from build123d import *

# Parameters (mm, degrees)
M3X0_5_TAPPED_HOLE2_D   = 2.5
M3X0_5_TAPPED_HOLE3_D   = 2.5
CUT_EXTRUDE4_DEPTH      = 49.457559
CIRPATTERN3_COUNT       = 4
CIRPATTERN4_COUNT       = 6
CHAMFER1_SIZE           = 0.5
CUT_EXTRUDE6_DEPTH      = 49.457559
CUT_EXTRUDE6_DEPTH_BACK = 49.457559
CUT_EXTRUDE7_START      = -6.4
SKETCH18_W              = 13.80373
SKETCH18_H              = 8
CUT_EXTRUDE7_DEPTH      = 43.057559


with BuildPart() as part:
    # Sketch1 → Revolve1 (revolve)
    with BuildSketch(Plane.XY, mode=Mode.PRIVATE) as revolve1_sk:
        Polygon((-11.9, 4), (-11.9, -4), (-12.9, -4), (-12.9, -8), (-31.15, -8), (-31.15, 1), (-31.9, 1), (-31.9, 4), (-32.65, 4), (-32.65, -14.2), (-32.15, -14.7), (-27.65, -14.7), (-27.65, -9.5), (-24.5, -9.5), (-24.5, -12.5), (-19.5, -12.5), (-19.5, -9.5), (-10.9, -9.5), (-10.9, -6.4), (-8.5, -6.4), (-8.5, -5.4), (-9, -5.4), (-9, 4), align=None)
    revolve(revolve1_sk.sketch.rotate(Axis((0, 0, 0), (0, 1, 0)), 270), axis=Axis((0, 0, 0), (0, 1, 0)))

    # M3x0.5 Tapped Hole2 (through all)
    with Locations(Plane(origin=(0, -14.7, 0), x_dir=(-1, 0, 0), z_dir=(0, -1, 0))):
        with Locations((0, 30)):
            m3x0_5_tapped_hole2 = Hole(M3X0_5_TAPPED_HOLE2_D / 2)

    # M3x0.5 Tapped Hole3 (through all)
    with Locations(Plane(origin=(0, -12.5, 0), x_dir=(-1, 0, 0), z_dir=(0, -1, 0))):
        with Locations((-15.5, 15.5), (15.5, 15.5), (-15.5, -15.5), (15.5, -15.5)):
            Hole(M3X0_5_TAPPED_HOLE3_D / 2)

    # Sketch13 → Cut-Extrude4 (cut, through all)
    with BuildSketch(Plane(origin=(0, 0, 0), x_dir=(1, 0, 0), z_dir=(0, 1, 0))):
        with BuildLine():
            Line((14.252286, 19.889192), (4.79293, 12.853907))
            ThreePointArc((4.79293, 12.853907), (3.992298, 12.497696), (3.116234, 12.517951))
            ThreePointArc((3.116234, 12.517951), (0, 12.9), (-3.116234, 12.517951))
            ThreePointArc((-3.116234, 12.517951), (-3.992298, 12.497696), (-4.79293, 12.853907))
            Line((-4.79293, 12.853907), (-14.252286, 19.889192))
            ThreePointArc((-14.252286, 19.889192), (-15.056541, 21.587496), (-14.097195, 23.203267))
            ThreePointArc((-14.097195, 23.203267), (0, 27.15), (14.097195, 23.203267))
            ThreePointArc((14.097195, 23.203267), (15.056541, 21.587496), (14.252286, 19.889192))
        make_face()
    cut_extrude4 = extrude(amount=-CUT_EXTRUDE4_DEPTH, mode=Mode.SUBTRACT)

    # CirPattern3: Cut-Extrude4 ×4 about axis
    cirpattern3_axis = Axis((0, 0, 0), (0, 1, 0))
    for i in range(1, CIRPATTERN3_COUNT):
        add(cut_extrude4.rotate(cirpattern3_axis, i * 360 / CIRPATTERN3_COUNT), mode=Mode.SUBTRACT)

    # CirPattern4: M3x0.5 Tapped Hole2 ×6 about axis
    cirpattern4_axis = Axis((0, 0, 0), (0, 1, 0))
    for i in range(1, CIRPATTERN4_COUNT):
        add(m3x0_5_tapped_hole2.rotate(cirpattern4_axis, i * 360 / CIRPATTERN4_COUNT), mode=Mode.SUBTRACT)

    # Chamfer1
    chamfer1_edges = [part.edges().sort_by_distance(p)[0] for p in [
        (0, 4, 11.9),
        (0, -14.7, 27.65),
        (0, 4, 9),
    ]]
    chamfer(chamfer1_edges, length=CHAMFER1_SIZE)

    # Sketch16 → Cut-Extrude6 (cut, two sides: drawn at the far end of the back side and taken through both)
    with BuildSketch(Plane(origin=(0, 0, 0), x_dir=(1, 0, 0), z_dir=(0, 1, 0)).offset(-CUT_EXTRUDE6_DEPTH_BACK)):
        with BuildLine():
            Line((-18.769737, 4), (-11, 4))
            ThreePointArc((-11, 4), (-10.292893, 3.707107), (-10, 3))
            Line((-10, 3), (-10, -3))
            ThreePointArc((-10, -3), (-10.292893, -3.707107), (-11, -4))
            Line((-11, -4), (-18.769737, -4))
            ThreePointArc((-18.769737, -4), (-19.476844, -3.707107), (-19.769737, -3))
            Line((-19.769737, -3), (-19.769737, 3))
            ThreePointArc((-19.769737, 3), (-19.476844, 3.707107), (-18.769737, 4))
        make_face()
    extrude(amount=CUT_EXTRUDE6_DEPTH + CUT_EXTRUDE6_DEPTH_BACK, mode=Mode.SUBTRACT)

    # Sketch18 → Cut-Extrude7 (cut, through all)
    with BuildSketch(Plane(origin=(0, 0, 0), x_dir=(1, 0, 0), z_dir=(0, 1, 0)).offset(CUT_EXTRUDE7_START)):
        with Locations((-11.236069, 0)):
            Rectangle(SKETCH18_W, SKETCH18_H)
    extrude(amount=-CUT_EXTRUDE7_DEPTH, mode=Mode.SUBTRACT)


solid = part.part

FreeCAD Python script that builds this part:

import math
import FreeCAD as App
import Part
import Sketcher

V = App.Vector
Q = App.Units.Quantity


def edges_at(feature, points):
    """Names of the edges that pass closest to the given points."""
    edges = feature.Shape.Edges
    near = lambda p: min(range(len(edges)), key=lambda i: edges[i].distToShape(Part.Vertex(*p))[0])
    return sorted({f"Edge{near(p) + 1}" for p in points})


def add_polygon(sketch, points):
    """Adds a closed chain of lines whose ends are joined by coincident constraints."""
    first, n = sketch.GeometryCount, len(points)
    for a, b in zip(points, points[1:] + points[:1]):
        sketch.addGeometry(Part.LineSegment(App.Vector(*a, 0), App.Vector(*b, 0)), False)
    for i in range(n):
        sketch.addConstraint(Sketcher.Constraint("Coincident", first + i, 2, first + (i + 1) % n, 1))

doc = App.newDocument("Part")
body = doc.addObject("PartDesign::Body", "Body")

sketch1 = doc.addObject("Sketcher::SketchObject", "Sketch")
body.addObject(sketch1)
sketch1.AttachmentSupport = (doc.XY_Plane, [""])
sketch1.MapMode = "FlatFace"
add_polygon(sketch1, [(-11.9, 4), (-11.9, -4), (-12.9, -4), (-12.9, -8), (-31.15, -8), (-31.15, 1), (-31.9, 1), (-31.9, 4), (-32.65, 4), (-32.65, -14.2), (-32.15, -14.7), (-27.65, -14.7), (-27.65, -9.5), (-24.5, -9.5), (-24.5, -12.5), (-19.5, -12.5), (-19.5, -9.5), (-10.9, -9.5), (-10.9, -6.4), (-8.5, -6.4), (-8.5, -5.4), (-9, -5.4), (-9, 4)])
sketch1.addConstraint([
    Sketcher.Constraint("Vertical", 0),
    Sketcher.Constraint("Horizontal", 1),
    Sketcher.Constraint("Vertical", 2),
    Sketcher.Constraint("Horizontal", 3),
    Sketcher.Constraint("Vertical", 4),
    Sketcher.Constraint("Horizontal", 5),
    Sketcher.Constraint("Vertical", 6),
    Sketcher.Constraint("Horizontal", 7),
    Sketcher.Constraint("Vertical", 8),
    Sketcher.Constraint("Horizontal", 10),
    Sketcher.Constraint("Vertical", 11),
    Sketcher.Constraint("Horizontal", 12),
    Sketcher.Constraint("Vertical", 13),
    Sketcher.Constraint("Horizontal", 14),
    Sketcher.Constraint("Vertical", 15),
    Sketcher.Constraint("Horizontal", 16),
    Sketcher.Constraint("Vertical", 17),
    Sketcher.Constraint("Horizontal", 18),
    Sketcher.Constraint("Vertical", 19),
    Sketcher.Constraint("Horizontal", 20),
    Sketcher.Constraint("Vertical", 21),
    Sketcher.Constraint("Horizontal", 22),
    Sketcher.Constraint("Horizontal", 12, 2, 15, 2),
    Sketcher.Constraint("Horizontal", 7, 2, 21, 2),
    Sketcher.Constraint("Equal", 5, 7),
    Sketcher.Constraint("Equal", 6, 13),
    Sketcher.Constraint("Equal", 1, 19),
    Sketcher.Constraint("DistanceX", 1, 2, 1, 1, 1.0),
    Sketcher.Constraint("DistanceX", 14, 1, 14, 2, 5.0),
    Sketcher.Constraint("DistanceY", 0, 2, 0, 1, 8.0),
    Sketcher.Constraint("DistanceY", 2, 2, 2, 1, 4.0),
    Sketcher.Constraint("DistanceY", 4, 1, 4, 2, 9.0),
    Sketcher.Constraint("Angle", 9, Q("-45 deg")),
    Sketcher.Constraint("DistanceX", 10, 1, 10, 2, 4.5),
    Sketcher.Constraint("DistanceX", 16, 1, 16, 2, 8.6),
    Sketcher.Constraint("DistanceX", 18, 1, 18, 2, 2.4),
    Sketcher.Constraint("DistanceX", 20, 2, 20, 1, 0.5),
    Sketcher.Constraint("DistanceX", 22, 2, 22, 1, 2.9),
    Sketcher.Constraint("DistanceY", 8, 2, 8, 1, 18.2),
    Sketcher.Constraint("DistanceY", 11, 1, 11, 2, 5.2),
    Sketcher.Constraint("DistanceY", 17, 1, 17, 2, 3.1),
    Sketcher.Constraint("DistanceY", 21, 1, 21, 2, 9.4),
    Sketcher.Constraint("DistanceY", 0, 2, -1, 1, 4.0),
    Sketcher.Constraint("DistanceX", 20, 2, -1, 1, 9.0),
    Sketcher.Constraint("DistanceX", 5, 2, 1, 2, 19.0),
    Sketcher.Constraint("DistanceX", 9, 2, 3, 2, 1.0),
])
revolution = doc.addObject("PartDesign::Revolution", "Revolution")
body.addObject(revolution)
revolution.Profile = sketch1
revolution.ReferenceAxis = (sketch1, ["V_Axis"])
revolution.Angle = 360

sketch2 = doc.addObject("Sketcher::SketchObject", "Sketch001")
body.addObject(sketch2)
sketch2.AttachmentSupport = (doc.XZ_Plane, [""])
sketch2.MapMode = "FlatFace"
sketch2.AttachmentOffset = App.Placement(V(0, 0, 14.7), App.Rotation())
sketch2.addGeometry(Part.Circle(V(0, -30, 0), V(0, 0, 1), 1.25), False)
sketch2.addConstraint([
    Sketcher.Constraint("PointOnObject", 0, 3, -2),
    Sketcher.Constraint("Diameter", 0, 2.5),
    Sketcher.Constraint("DistanceY", 0, 3, -1, 1, 30.0),
])
doc.recompute()
hole = doc.addObject("PartDesign::Hole", "Hole")
body.addObject(hole)
hole.Profile = sketch2
hole.ThreadType = "None"
hole.Diameter = 2.5
hole.DepthType = "ThroughAll"

sketch3 = doc.addObject("Sketcher::SketchObject", "Sketch002")
body.addObject(sketch3)
sketch3.AttachmentSupport = (doc.XZ_Plane, [""])
sketch3.MapMode = "FlatFace"
sketch3.AttachmentOffset = App.Placement(V(0, 0, 12.5), App.Rotation())
sketch3.addGeometry([
    Part.Circle(V(15.5, -15.5, 0), V(0, 0, 1), 1.25),
    Part.Circle(V(-15.5, -15.5, 0), V(0, 0, 1), 1.25),
    Part.Circle(V(15.5, 15.5, 0), V(0, 0, 1), 1.25),
    Part.Circle(V(-15.5, 15.5, 0), V(0, 0, 1), 1.25),
], False)
sketch3.addConstraint([
    Sketcher.Constraint("Equal", 0, 1),
    Sketcher.Constraint("Equal", 1, 2),
    Sketcher.Constraint("Equal", 2, 3),
    Sketcher.Constraint("Symmetric", 1, 3, 2, 3, -1, 1),
    Sketcher.Constraint("Symmetric", 0, 3, 3, 3, -1, 1),
    Sketcher.Constraint("Symmetric", 0, 3, 1, 3, -2),
    Sketcher.Constraint("Diameter", 0, 2.5),
    Sketcher.Constraint("DistanceX", 1, 3, 0, 3, 31.0),
    Sketcher.Constraint("DistanceY", 0, 3, 2, 3, 31.0),
])
doc.recompute()
hole2 = doc.addObject("PartDesign::Hole", "Hole001")
body.addObject(hole2)
hole2.Profile = sketch3
hole2.ThreadType = "None"
hole2.Diameter = 2.5
hole2.DepthType = "ThroughAll"

sketch4 = doc.addObject("Sketcher::SketchObject", "Sketch003")
body.addObject(sketch4)
sketch4.AttachmentSupport = (doc.XZ_Plane, [""])
sketch4.MapMode = "FlatFace"
sketch4.addGeometry([
    Part.LineSegment(V(4.79293, -12.853907, 0), V(14.252286, -19.889192, 0)),
    Part.ArcOfCircle(Part.Circle(V(13.058728, -21.494003, 0), V(0, 0, 1), 2), math.radians(-58.719137), math.radians(53.360428)),
    Part.ArcOfCircle(Part.Circle(V(0, 0.000001, 0), V(0, 0, 1), 27.150001), math.radians(-121.280863), math.radians(-58.719137)),
    Part.ArcOfCircle(Part.Circle(V(-13.058728, -21.494003, 0), V(0, 0, 1), 2), math.radians(126.639572), math.radians(238.719137)),
    Part.LineSegment(V(-14.252286, -19.889192, 0), V(-4.79293, -12.853907, 0)),
    Part.ArcOfCircle(Part.Circle(V(-3.599372, -14.45872, 0), V(0, 0, 1), 2.000002), math.radians(76.020861), math.radians(126.639534)),
    Part.ArcOfCircle(Part.Circle(V(0, 0.000015, 0), V(0, 0, 1), 12.900015), math.radians(-103.979118), math.radians(-76.020882)),
    Part.ArcOfCircle(Part.Circle(V(3.599372, -14.45872, 0), V(0, 0, 1), 2.000002), math.radians(53.360466), math.radians(103.979139)),
], False)
sketch4.addConstraint([
    Sketcher.Constraint("Tangent", 0, 2, 1, 2),
    Sketcher.Constraint("Tangent", 1, 1, 2, 2),
    Sketcher.Constraint("Tangent", 2, 1, 3, 2),
    Sketcher.Constraint("Tangent", 3, 1, 4, 1),
    Sketcher.Constraint("Tangent", 4, 2, 5, 2),
    Sketcher.Constraint("Tangent", 5, 1, 6, 1),
    Sketcher.Constraint("Tangent", 6, 2, 7, 2),
    Sketcher.Constraint("Tangent", 7, 1, 0, 1),
    Sketcher.Constraint("Coincident", 2, 3, -1, 1),
    Sketcher.Constraint("Equal", 1, 3),
    Sketcher.Constraint("Equal", 5, 7),
    Sketcher.Constraint("Symmetric", 5, 3, 7, 3, -2),
    Sketcher.Constraint("Horizontal", 1, 3, 3, 3),
    Sketcher.Constraint("Radius", 1, 2.0),
    Sketcher.Constraint("Radius", 5, 2.000002),
    Sketcher.Constraint("Radius", 2, 27.150001),
    Sketcher.Constraint("Radius", 6, 12.900015),
    Sketcher.Constraint("DistanceX", 5, 3, 1, 3, 16.658099),
    Sketcher.Constraint("DistanceX", 4, 2, 7, 3, 8.392302),
    Sketcher.Constraint("Distance", 0, 11.788751),
])
pocket1 = doc.addObject("PartDesign::Pocket", "Pocket")
body.addObject(pocket1)
pocket1.Profile = sketch4
pocket1.Type = "ThroughAll"
pocket1.Reversed = True
doc.recompute()

polarpattern = doc.addObject("PartDesign::PolarPattern", "PolarPattern")
body.addObject(polarpattern)
polarpattern.Originals = [pocket1]
polarpattern.Axis = (doc.Y_Axis, [""])
polarpattern.Angle = 360
polarpattern.Occurrences = 4
body.Tip = polarpattern
doc.recompute()

polarpattern2 = doc.addObject("PartDesign::PolarPattern", "PolarPattern001")
body.addObject(polarpattern2)
polarpattern2.Originals = [hole]
polarpattern2.Axis = (doc.Y_Axis, [""])
polarpattern2.Angle = 360
polarpattern2.Occurrences = 6
body.Tip = polarpattern2
doc.recompute()

chamfer = doc.addObject("PartDesign::Chamfer", "Chamfer")
body.addObject(chamfer)
chamfer.Base = (polarpattern2, edges_at(polarpattern2, [(0, 4, 11.9), (0, -14.7, 27.65), (0, 4, 9)]))
chamfer.Size = 0.5

sketch5 = doc.addObject("Sketcher::SketchObject", "Sketch004")
body.addObject(sketch5)
sketch5.AttachmentSupport = (doc.XZ_Plane, [""])
sketch5.MapMode = "FlatFace"
sketch5.addGeometry([
    Part.LineSegment(V(-11, -4, 0), V(-18.769737, -4, 0)),
    Part.ArcOfCircle(Part.Circle(V(-18.769738, -3.000001, 0), V(0, 0, 1), 0.999999), math.radians(179.999957), math.radians(270.000043)),
    Part.LineSegment(V(-19.769737, -3, 0), V(-19.769737, 3, 0)),
    Part.ArcOfCircle(Part.Circle(V(-18.769738, 3.000001, 0), V(0, 0, 1), 0.999999), math.radians(89.999957), math.radians(180.000043)),
    Part.LineSegment(V(-18.769737, 4, 0), V(-11, 4, 0)),
    Part.ArcOfCircle(Part.Circle(V(-10.999999, 3.000001, 0), V(0, 0, 1), 0.999999), math.radians(-0.000043), math.radians(90.000043)),
    Part.LineSegment(V(-10, 3, 0), V(-10, -3, 0)),
    Part.ArcOfCircle(Part.Circle(V(-10.999999, -3.000001, 0), V(0, 0, 1), 0.999999), math.radians(-90.000043), math.radians(0.000043)),
], False)
sketch5.addConstraint([
    Sketcher.Constraint("Tangent", 0, 2, 1, 2),
    Sketcher.Constraint("Tangent", 1, 1, 2, 1),
    Sketcher.Constraint("Tangent", 2, 2, 3, 2),
    Sketcher.Constraint("Tangent", 3, 1, 4, 1),
    Sketcher.Constraint("Tangent", 4, 2, 5, 2),
    Sketcher.Constraint("Tangent", 5, 1, 6, 1),
    Sketcher.Constraint("Tangent", 6, 2, 7, 2),
    Sketcher.Constraint("Tangent", 7, 1, 0, 1),
    Sketcher.Constraint("Horizontal", 0),
    Sketcher.Constraint("Vertical", 2),
    Sketcher.Constraint("Horizontal", 4),
    Sketcher.Constraint("Vertical", 6),
    Sketcher.Constraint("Equal", 1, 3),
    Sketcher.Constraint("Equal", 3, 5),
    Sketcher.Constraint("Equal", 5, 7),
    Sketcher.Constraint("Radius", 1, 0.999999),
    Sketcher.Constraint("DistanceY", 2, 1, 2, 2, 6.0),
    Sketcher.Constraint("DistanceY", 1, 3, -1, 1, 3.000001),
    Sketcher.Constraint("DistanceX", 5, 3, -1, 1, 10.999999),
    Sketcher.Constraint("DistanceX", 0, 2, 0, 1, 7.769737),
])
pocket2 = doc.addObject("PartDesign::Pocket", "Pocket001")
body.addObject(pocket2)
pocket2.Profile = sketch5
pocket2.Type = "ThroughAll"
pocket2.Midplane = True

sketch6 = doc.addObject("Sketcher::SketchObject", "Sketch005")
body.addObject(sketch6)
sketch6.AttachmentSupport = (doc.XZ_Plane, [""])
sketch6.MapMode = "FlatFace"
sketch6.AttachmentOffset = App.Placement(V(0, 0, 6.4), App.Rotation())
add_polygon(sketch6, [(-18.137934, -4), (-18.137934, 4), (-4.334204, 4), (-4.334204, -4)])
sketch6.addConstraint([
    Sketcher.Constraint("Vertical", 0),
    Sketcher.Constraint("Horizontal", 1),
    Sketcher.Constraint("Vertical", 2),
    Sketcher.Constraint("Horizontal", 3),
    Sketcher.Constraint("DistanceY", 0, 1, 0, 2, 8.0),
    Sketcher.Constraint("DistanceY", -1, 1, 0, 2, 4.0),
    Sketcher.Constraint("DistanceX", 1, 1, 1, 2, 13.80373),
    Sketcher.Constraint("DistanceX", 0, 2, -1, 1, 18.137934),
])
pocket3 = doc.addObject("PartDesign::Pocket", "Pocket002")
body.addObject(pocket3)
pocket3.Profile = sketch6
pocket3.Type = "ThroughAll"
pocket3.Reversed = True

doc.recompute()
